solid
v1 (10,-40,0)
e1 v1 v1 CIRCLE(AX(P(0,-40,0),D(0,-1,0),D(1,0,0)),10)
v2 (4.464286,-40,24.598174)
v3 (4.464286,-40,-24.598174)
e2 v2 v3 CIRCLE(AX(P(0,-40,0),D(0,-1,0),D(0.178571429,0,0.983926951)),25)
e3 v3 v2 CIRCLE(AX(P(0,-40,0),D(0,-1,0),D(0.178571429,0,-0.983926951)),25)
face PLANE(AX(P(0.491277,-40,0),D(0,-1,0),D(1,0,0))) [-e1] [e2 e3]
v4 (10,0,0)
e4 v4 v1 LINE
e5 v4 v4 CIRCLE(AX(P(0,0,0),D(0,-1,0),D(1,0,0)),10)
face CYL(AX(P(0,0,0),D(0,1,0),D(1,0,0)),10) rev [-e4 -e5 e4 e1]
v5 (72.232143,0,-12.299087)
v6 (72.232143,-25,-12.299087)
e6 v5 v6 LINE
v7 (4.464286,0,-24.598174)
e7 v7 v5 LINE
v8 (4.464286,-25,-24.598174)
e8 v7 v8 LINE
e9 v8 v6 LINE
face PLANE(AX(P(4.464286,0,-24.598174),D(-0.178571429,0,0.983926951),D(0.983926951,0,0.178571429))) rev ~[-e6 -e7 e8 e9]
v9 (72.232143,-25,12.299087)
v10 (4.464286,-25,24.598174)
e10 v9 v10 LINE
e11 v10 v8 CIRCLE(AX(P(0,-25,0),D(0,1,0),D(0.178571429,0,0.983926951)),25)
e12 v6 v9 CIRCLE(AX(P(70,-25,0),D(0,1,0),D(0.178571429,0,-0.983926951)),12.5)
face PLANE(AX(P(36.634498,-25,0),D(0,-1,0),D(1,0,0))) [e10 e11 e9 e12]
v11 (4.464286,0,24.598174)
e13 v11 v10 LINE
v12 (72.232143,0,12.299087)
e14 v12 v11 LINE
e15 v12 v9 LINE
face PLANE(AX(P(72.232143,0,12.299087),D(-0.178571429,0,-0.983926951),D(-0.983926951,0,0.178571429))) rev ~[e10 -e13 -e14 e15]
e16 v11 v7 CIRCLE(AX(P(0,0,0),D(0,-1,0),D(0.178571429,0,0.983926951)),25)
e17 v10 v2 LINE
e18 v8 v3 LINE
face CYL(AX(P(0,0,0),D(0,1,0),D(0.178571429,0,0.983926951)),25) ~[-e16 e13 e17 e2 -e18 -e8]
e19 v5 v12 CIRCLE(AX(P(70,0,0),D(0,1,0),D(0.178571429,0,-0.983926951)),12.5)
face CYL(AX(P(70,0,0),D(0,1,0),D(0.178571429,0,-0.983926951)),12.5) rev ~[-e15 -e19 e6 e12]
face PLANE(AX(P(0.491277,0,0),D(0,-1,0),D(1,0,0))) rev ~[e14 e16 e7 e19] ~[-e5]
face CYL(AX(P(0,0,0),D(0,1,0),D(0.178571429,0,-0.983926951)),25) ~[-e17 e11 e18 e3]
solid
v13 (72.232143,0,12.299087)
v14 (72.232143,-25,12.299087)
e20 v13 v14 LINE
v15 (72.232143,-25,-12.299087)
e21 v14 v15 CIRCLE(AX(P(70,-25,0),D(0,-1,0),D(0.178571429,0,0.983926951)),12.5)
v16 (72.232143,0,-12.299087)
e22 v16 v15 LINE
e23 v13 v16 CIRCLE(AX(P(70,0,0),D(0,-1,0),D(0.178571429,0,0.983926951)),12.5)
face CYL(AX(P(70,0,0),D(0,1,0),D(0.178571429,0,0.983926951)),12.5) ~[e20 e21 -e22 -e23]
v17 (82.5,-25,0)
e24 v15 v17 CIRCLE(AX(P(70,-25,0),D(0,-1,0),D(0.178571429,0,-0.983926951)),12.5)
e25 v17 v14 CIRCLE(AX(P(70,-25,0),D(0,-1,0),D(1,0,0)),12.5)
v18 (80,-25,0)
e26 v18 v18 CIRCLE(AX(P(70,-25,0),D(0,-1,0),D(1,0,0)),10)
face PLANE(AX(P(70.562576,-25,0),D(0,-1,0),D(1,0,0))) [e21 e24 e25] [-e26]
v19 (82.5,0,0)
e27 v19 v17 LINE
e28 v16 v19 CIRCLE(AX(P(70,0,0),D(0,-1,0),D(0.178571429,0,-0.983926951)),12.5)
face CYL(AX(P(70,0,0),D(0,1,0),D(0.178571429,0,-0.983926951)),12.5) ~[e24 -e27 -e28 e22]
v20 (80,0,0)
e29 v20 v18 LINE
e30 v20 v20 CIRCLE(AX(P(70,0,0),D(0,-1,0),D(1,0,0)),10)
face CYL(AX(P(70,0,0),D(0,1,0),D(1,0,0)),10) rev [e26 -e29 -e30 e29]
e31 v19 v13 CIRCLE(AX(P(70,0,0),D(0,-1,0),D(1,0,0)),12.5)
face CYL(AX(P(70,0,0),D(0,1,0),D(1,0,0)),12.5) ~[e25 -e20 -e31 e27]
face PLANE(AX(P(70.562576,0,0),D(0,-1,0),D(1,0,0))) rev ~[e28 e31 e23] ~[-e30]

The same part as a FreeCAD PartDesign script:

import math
import FreeCAD as App
import Part
import Sketcher

V = App.Vector

doc = App.newDocument("Part")
body = doc.addObject("PartDesign::Body", "Body")

# Sketch on XZ plane
sketch1 = body.newObject("Sketcher::SketchObject", "Sketch")
sketch1.AttachmentSupport = (doc.getObject("XZ_Plane"), [""])
sketch1.MapMode = "FlatFace"
sketch1.addGeometry([
    Part.ArcOfCircle(Part.Circle(V(70, 0, 0), V(0, 0, 1), 12), math.radians(0), math.radians(80)),
    Part.ArcOfCircle(Part.Circle(V(70, 0, 0), V(0, 0, 1), 12), math.radians(80), math.radians(280)),
    Part.ArcOfCircle(Part.Circle(V(70, 0, 0), V(0, 0, 1), 12), math.radians(-80), math.radians(0)),
    Part.Circle(V(70, 0, 0), V(0, 0, 1), 10),
], False)
sketch1.addConstraint([
    Sketcher.Constraint("Tangent", 0, 2, 1, 1),
    Sketcher.Constraint("Tangent", 1, 2, 2, 1),
    Sketcher.Constraint("Tangent", 2, 2, 0, 1),
    Sketcher.Constraint("Coincident", 3, 3, 0, 3),
    Sketcher.Constraint("Symmetric", 0, 2, 1, 2, -1),
    Sketcher.Constraint("PointOnObject", 2, 2, -1),
    Sketcher.Constraint("Diameter", 3, 20.0),
    Sketcher.Constraint("Radius", 0, 12.5),
    Sketcher.Constraint("DistanceX", -1, 1, 0, 3, 70.0),
    Sketcher.Constraint("DistanceX", -1, 1, 0, 2, 72.232143),
])
pad1 = body.newObject("PartDesign::Pad", "Pad")
pad1.Profile = sketch1
pad1.Length = 25
body2 = doc.addObject("PartDesign::Body", "Body001")

# Sketch on XZ plane
sketch2 = body2.newObject("Sketcher::SketchObject", "Sketch001")
sketch2.AttachmentSupport = (doc.getObject("XZ_Plane001"), [""])
sketch2.MapMode = "FlatFace"
sketch2.addGeometry([
    Part.LineSegment(V(72, 12, 0), V(4, 25, 0)),
    Part.ArcOfCircle(Part.Circle(V(0, 0, 0), V(0, 0, 1), 25), math.radians(-80), math.radians(80)),
    Part.LineSegment(V(4, -25, 0), V(72, -12, 0)),
    Part.ArcOfCircle(Part.Circle(V(70, 0, 0), V(0, 0, 1), 12), math.radians(80), math.radians(280)),
], False)
sketch2.addConstraint([
    Sketcher.Constraint("Tangent", 0, 2, 1, 2),
    Sketcher.Constraint("Tangent", 1, 1, 2, 1),
    Sketcher.Constraint("Tangent", 2, 2, 3, 2),
    Sketcher.Constraint("Tangent", 3, 1, 0, 1),
    Sketcher.Constraint("Coincident", 1, 3, -1, 1),
    Sketcher.Constraint("PointOnObject", 3, 3, -1),
    Sketcher.Constraint("Radius", 1, 25.0),
    Sketcher.Constraint("Radius", 3, 12.5),
    Sketcher.Constraint("DistanceX", -1, 1, 3, 3, 70.0),
])
pad2 = body2.newObject("PartDesign::Pad", "Pad001")
pad2.Profile = sketch2
pad2.Length = 25

# Sketch on XZ plane
sketch3 = body2.newObject("Sketcher::SketchObject", "Sketch002")
sketch3.AttachmentSupport = (doc.getObject("XZ_Plane001"), [""])
sketch3.MapMode = "FlatFace"
sketch3.addGeometry([
    Part.ArcOfCircle(Part.Circle(V(0, 0, 0), V(0, 0, 1), 25), math.radians(-80), math.radians(80)),
    Part.ArcOfCircle(Part.Circle(V(0, 0, 0), V(0, 0, 1), 25), math.radians(80), math.radians(280)),
    Part.Circle(V(0, 0, 0), V(0, 0, 1), 10),
], False)
sketch3.addConstraint([
    Sketcher.Constraint("Tangent", 0, 1, 1, 2),
    Sketcher.Constraint("Coincident", 1, 1, 0, 2),
    Sketcher.Constraint("Coincident", 0, 3, -1, 1),
    Sketcher.Constraint("Coincident", 2, 3, -1, 1),
    Sketcher.Constraint("Vertical", 0, 1, 1, 1),
    Sketcher.Constraint("Diameter", 2, 20.0),
    Sketcher.Constraint("Radius", 0, 25.0),
    Sketcher.Constraint("DistanceX", -1, 1, 0, 1, 4.464286),
])
pad3 = body2.newObject("PartDesign::Pad", "Pad002")
pad3.Profile = sketch3
pad3.Length = 40

doc.recompute()
